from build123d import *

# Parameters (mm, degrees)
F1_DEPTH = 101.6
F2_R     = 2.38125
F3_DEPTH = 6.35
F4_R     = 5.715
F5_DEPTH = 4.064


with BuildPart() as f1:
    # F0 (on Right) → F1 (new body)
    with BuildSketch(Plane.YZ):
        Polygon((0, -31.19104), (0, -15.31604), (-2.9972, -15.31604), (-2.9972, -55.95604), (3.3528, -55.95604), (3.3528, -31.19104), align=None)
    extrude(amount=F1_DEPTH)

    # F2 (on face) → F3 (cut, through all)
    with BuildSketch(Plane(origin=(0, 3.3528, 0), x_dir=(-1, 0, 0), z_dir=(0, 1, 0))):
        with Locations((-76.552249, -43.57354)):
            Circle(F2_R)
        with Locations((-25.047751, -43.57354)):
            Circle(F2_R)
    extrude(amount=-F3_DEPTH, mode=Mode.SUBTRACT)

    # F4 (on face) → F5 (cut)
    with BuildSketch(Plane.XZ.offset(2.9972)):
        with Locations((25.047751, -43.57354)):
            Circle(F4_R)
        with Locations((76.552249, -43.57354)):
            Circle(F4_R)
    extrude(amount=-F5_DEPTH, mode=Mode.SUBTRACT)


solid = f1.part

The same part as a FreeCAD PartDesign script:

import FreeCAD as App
import Part
import Sketcher
Q = App.Units.Quantity

doc = App.newDocument("Part")
params = doc.addObject("Spreadsheet::Sheet", "Params")
for row, (alias, value) in enumerate([
    ("sketch1_height", "1.6 in"),
    ("sketch1_width", "0.25 in"),
    ("sketch1_width2", "0.118 in"),
    ("sketch1_height2", "0.625 in"),
    ("pad1_length", "4 in"),
    ("sketch2_diameter", "0.1875 in"),
    ("sketch3_diameter", "0.45 in"),
    ("pocket2_length", "0.16 in"),
], start=1):
    params.set(f"A{row}", alias)
    params.set(f"B{row}", "=" + value)
    params.setAlias(f"B{row}", alias)

body = doc.addObject("PartDesign::Body", "Body")

# Sketch on YZ plane
sketch1 = body.newObject("Sketcher::SketchObject", "Sketch")
sketch1.AttachmentSupport = (doc.getObject("YZ_Plane"), [""])
sketch1.MapMode = "FlatFace"
sketch1.addGeometry([
    Part.LineSegment(App.Vector(0, -31.2, 0), App.Vector(0, -15.3, 0)),  # 0
    Part.LineSegment(App.Vector(0, -15.3, 0), App.Vector(-3, -15.3, 0)),  # 1
    Part.LineSegment(App.Vector(-3, -15.3, 0), App.Vector(-3, -56, 0)),  # 2
    Part.LineSegment(App.Vector(-3, -56, 0), App.Vector(3.4, -56, 0)),  # 3
    Part.LineSegment(App.Vector(3.4, -56, 0), App.Vector(3.4, -31.2, 0)),  # 4
    Part.LineSegment(App.Vector(3.4, -31.2, 0), App.Vector(0, -31.2, 0)),  # 5
], False)
sketch1.addConstraint([
    Sketcher.Constraint("Coincident", 0, 2, 1, 1),
    Sketcher.Constraint("Coincident", 1, 2, 2, 1),
    Sketcher.Constraint("Coincident", 2, 2, 3, 1),
    Sketcher.Constraint("Coincident", 3, 2, 4, 1),
    Sketcher.Constraint("Coincident", 4, 2, 5, 1),
    Sketcher.Constraint("Coincident", 5, 2, 0, 1),
    Sketcher.Constraint("Vertical", 0),
    Sketcher.Constraint("Horizontal", 1),
    Sketcher.Constraint("Vertical", 2),
    Sketcher.Constraint("Horizontal", 3),
    Sketcher.Constraint("Vertical", 4),
    Sketcher.Constraint("Horizontal", 5),
    Sketcher.Constraint("PointOnObject", 0, 2, -2),
    Sketcher.Constraint("DistanceY", 2, 2, 2, 1, Q("1.6 in")),
    Sketcher.Constraint("DistanceX", 3, 1, 3, 2, Q("0.25 in")),
    Sketcher.Constraint("DistanceX", 1, 2, 1, 1, Q("0.118 in")),
    Sketcher.Constraint("DistanceY", 0, 1, 0, 2, Q("0.625 in")),
    Sketcher.Constraint("DistanceY", 0, 2, -1, 1, Q("15.31604 mm")),
])
sketch1.setExpression("Constraints[13]", "Params.sketch1_height")
sketch1.setExpression("Constraints[14]", "Params.sketch1_width")
sketch1.setExpression("Constraints[15]", "Params.sketch1_width2")
sketch1.setExpression("Constraints[16]", "Params.sketch1_height2")
pad1 = body.newObject("PartDesign::Pad", "Pad")
pad1.Profile = sketch1
pad1.setExpression("Length", "Params.pad1_length")

# Sketch on XZ plane
sketch2 = body.newObject("Sketcher::SketchObject", "Sketch001")
sketch2.AttachmentSupport = (doc.getObject("XZ_Plane"), [""])
sketch2.MapMode = "FlatFace"
sketch2.AttachmentOffset = App.Placement(App.Vector(0, 0, -0.132 * 25.4), App.Rotation())
sketch2.addGeometry([
    Part.Circle(App.Vector(76.6, -43.6, 0), App.Vector(0, 0, 1), 2.4),
    Part.Circle(App.Vector(25, -43.6, 0), App.Vector(0, 0, 1), 2.4),
], False)
sketch2.addConstraint([
    Sketcher.Constraint("Equal", 0, 1),
    Sketcher.Constraint("Horizontal", 0, 3, 1, 3),
    Sketcher.Constraint("Diameter", 0, Q("0.1875 in")),
    Sketcher.Constraint("DistanceX", -1, 1, 0, 3, Q("76.552249 mm")),
    Sketcher.Constraint("DistanceY", 0, 3, -1, 1, Q("43.57354 mm")),
    Sketcher.Constraint("DistanceX", -1, 1, 1, 3, Q("25.047751 mm")),
])
sketch2.setExpression("Constraints[2]", "Params.sketch2_diameter")
pocket1 = body.newObject("PartDesign::Pocket", "Pocket")
pocket1.Profile = sketch2
pocket1.Type = "ThroughAll"
pocket1.Reversed = True

# Sketch on XZ plane
sketch3 = body.newObject("Sketcher::SketchObject", "Sketch002")
sketch3.AttachmentSupport = (doc.getObject("XZ_Plane"), [""])
sketch3.MapMode = "FlatFace"
sketch3.AttachmentOffset = App.Placement(App.Vector(0, 0, 0.118 * 25.4), App.Rotation())
sketch3.addGeometry([
    Part.Circle(App.Vector(25, -44, 0), App.Vector(0, 0, 1), 6),
    Part.Circle(App.Vector(77, -44, 0), App.Vector(0, 0, 1), 6),
], False)
sketch3.addConstraint([
    Sketcher.Constraint("Equal", 0, 1),
    Sketcher.Constraint("Horizontal", 0, 3, 1, 3),
    Sketcher.Constraint("Diameter", 0, Q("0.45 in")),
    Sketcher.Constraint("DistanceX", -1, 1, 0, 3, Q("25.047751 mm")),
    Sketcher.Constraint("DistanceY", 0, 3, -1, 1, Q("43.57354 mm")),
    Sketcher.Constraint("DistanceX", -1, 1, 1, 3, Q("76.552249 mm")),
])
sketch3.setExpression("Constraints[2]", "Params.sketch3_diameter")
pocket2 = body.newObject("PartDesign::Pocket", "Pocket001")
pocket2.Profile = sketch3
pocket2.setExpression("Length", "Params.pocket2_length")

doc.recompute()
